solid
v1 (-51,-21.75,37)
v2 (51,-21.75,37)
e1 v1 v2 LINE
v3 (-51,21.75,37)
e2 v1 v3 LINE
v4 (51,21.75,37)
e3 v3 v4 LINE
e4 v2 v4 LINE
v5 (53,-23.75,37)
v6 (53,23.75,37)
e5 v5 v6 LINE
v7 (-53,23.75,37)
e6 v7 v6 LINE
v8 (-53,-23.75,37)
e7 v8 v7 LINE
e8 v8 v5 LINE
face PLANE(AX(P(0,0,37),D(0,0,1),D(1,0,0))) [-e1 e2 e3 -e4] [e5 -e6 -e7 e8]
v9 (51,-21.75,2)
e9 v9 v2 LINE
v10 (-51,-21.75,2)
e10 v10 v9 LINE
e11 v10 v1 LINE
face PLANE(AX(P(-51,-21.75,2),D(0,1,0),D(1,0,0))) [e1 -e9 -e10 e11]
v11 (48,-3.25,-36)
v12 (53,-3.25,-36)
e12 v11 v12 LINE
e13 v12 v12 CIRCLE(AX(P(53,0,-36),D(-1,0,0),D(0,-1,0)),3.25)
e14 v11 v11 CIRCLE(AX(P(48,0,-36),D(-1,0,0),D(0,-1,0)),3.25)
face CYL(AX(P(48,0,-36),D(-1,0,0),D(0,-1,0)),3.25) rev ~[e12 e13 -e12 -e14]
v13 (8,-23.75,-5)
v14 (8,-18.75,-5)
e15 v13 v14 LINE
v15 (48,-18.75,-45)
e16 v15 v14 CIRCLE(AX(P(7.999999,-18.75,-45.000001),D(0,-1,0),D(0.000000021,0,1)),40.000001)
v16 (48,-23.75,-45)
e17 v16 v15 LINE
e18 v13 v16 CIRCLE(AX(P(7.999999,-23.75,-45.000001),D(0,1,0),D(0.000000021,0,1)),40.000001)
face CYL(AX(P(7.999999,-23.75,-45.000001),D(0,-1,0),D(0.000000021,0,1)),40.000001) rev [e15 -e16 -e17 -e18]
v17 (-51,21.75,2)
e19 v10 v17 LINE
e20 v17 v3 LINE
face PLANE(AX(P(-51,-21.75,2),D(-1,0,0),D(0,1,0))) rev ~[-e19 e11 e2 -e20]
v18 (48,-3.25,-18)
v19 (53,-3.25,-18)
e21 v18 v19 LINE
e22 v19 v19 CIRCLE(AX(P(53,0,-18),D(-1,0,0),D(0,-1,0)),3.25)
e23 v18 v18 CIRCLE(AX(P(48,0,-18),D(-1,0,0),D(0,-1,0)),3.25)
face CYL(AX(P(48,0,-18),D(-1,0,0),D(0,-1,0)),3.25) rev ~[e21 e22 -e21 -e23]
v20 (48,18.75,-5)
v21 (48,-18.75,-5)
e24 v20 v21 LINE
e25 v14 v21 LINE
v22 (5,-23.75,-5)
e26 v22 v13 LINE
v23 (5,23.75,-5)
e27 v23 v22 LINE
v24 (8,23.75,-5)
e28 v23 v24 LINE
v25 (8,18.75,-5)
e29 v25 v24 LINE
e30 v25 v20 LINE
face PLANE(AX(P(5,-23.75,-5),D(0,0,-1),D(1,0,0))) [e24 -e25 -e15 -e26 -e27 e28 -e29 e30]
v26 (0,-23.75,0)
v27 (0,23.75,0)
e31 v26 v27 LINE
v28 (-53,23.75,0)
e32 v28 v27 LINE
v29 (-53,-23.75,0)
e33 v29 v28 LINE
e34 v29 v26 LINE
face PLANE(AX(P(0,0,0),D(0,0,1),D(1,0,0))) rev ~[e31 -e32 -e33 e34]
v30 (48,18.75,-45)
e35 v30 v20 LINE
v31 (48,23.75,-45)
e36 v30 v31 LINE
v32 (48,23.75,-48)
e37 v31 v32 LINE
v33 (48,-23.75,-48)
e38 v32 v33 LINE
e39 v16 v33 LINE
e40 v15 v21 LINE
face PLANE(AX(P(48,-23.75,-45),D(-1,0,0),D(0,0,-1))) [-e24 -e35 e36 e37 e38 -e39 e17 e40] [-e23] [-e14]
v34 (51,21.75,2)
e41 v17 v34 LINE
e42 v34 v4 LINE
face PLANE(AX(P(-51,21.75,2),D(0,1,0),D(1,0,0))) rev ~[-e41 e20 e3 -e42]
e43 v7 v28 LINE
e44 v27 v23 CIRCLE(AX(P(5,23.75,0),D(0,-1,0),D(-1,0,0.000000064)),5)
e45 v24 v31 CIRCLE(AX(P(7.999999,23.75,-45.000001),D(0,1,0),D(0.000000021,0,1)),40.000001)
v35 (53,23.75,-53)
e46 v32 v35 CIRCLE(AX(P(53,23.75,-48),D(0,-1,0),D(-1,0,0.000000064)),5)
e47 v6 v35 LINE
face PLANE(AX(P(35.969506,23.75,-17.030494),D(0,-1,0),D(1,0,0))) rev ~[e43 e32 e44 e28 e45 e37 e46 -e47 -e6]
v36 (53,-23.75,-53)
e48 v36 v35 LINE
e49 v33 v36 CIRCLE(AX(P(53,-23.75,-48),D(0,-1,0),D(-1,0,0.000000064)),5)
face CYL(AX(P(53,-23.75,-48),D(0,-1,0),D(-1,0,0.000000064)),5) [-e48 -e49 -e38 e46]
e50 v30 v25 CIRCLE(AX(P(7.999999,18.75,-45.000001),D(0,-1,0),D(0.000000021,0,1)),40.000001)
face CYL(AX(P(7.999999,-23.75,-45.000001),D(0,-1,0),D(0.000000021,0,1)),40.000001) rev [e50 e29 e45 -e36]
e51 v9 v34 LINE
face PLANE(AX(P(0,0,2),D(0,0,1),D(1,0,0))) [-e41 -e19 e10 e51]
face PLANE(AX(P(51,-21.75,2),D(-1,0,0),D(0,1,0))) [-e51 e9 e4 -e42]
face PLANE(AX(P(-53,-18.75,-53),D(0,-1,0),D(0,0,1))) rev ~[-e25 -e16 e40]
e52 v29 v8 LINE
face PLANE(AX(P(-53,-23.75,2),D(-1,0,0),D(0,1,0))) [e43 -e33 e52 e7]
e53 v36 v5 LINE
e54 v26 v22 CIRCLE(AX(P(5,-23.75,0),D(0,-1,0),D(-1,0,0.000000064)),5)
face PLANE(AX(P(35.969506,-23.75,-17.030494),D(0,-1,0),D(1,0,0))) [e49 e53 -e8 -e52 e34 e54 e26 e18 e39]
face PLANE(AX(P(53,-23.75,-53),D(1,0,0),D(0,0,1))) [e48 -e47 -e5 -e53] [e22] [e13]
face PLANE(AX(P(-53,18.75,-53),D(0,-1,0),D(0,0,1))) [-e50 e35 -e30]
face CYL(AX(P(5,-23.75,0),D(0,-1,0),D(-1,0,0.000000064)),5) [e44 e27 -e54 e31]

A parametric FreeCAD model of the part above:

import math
import FreeCAD as App
import Part
import Sketcher
from FreeCAD import Vector


def add_polygon(sketch, points):
    """Adds a closed chain of lines whose ends are joined by coincident constraints."""
    first, n = sketch.GeometryCount, len(points)
    for a, b in zip(points, points[1:] + points[:1]):
        sketch.addGeometry(Part.LineSegment(App.Vector(*a, 0), App.Vector(*b, 0)), False)
    for i in range(n):
        sketch.addConstraint(Sketcher.Constraint("Coincident", first + i, 2, first + (i + 1) % n, 1))

doc = App.newDocument("Part")
params = doc.addObject("Spreadsheet::Sheet", "Params")
for row, (alias, value) in enumerate([
    ("sketch1_width", "106 mm"),
    ("sketch1_height", "47.5 mm"),
    ("pad1_length", "2 mm"),
    ("sketch2_width", "106 mm"),
    ("sketch2_width2", "102 mm"),
    ("sketch2_height", "47.5 mm"),
    ("sketch2_height2", "43.5 mm"),
    ("pad2_length", "35 mm"),
    ("sketch3_radius", "5 mm"),
    ("sketch3_radius2", "40.000001 mm"),
    ("sketch3_width", "53 mm"),
    ("pad3_length", "47.5 mm"),
    ("sketch4_height", "48 mm"),
    ("sketch4_width", "37.5 mm"),
    ("pocket1_length", "101 mm"),
    ("sketch5_diameter", "6.5 mm"),
    ("pocket2_length", "25 mm"),
], start=1):
    params.set(f"A{row}", alias)
    params.set(f"B{row}", "=" + value)
    params.setAlias(f"B{row}", alias)

body = doc.addObject("PartDesign::Body", "Body")

# Sketch on XY plane
sketch1 = doc.addObject("Sketcher::SketchObject", "Sketch")
body.addObject(sketch1)
sketch1.AttachmentSupport = (doc.XY_Plane, [""])
sketch1.MapMode = "FlatFace"
add_polygon(sketch1, [(-53, 24), (-53, -24), (53, -24), (53, 24)])  # lines 0-3
sketch1.addConstraint(Sketcher.Constraint("Vertical", 0))
sketch1.addConstraint(Sketcher.Constraint("Horizontal", 1))
sketch1.addConstraint(Sketcher.Constraint("Vertical", 2))
sketch1.addConstraint(Sketcher.Constraint("Horizontal", 3))
sketch1.addConstraint(Sketcher.Constraint("Symmetric", 0, 2, 2, 2, -1, 1))
sketch1.addConstraint(Sketcher.Constraint("DistanceX", 1, 1, 1, 2, 106.0))
sketch1.addConstraint(Sketcher.Constraint("DistanceY", 0, 2, 0, 1, 47.5))
sketch1.setExpression("Constraints[9]", "Params.sketch1_width")
sketch1.setExpression("Constraints[10]", "Params.sketch1_height")
pad1 = doc.addObject("PartDesign::Pad", "Pad")
body.addObject(pad1)
pad1.Profile = sketch1
pad1.setExpression("Length", "Params.pad1_length")

# Sketch on XY plane
sketch2 = doc.addObject("Sketcher::SketchObject", "Sketch001")
body.addObject(sketch2)
sketch2.AttachmentSupport = (doc.XY_Plane, [""])
sketch2.MapMode = "FlatFace"
sketch2.AttachmentOffset = App.Placement(Vector(0, 0, 2), App.Rotation())
add_polygon(sketch2, [(-53, 24), (-53, -24), (53, -24), (53, 24)])  # lines 0-3
add_polygon(sketch2, [(51, -22), (-51, -22), (-51, 22), (51, 22)])  # lines 4-7
sketch2.addConstraint(Sketcher.Constraint("Vertical", 0))
sketch2.addConstraint(Sketcher.Constraint("Horizontal", 1))
sketch2.addConstraint(Sketcher.Constraint("Vertical", 2))
sketch2.addConstraint(Sketcher.Constraint("Horizontal", 3))
sketch2.addConstraint(Sketcher.Constraint("Horizontal", 4))
sketch2.addConstraint(Sketcher.Constraint("Vertical", 5))
sketch2.addConstraint(Sketcher.Constraint("Horizontal", 6))
sketch2.addConstraint(Sketcher.Constraint("Vertical", 7))
sketch2.addConstraint(Sketcher.Constraint("Symmetric", 0, 2, 2, 2, -1, 1))
sketch2.addConstraint(Sketcher.Constraint("Symmetric", 4, 2, 6, 2, -1, 1))
sketch2.addConstraint(Sketcher.Constraint("DistanceX", 1, 1, 1, 2, 106.0))
sketch2.addConstraint(Sketcher.Constraint("DistanceX", 4, 2, 4, 1, 102.0))
sketch2.addConstraint(Sketcher.Constraint("DistanceY", 0, 2, 0, 1, 47.5))
sketch2.addConstraint(Sketcher.Constraint("DistanceY", 5, 1, 5, 2, 43.5))
sketch2.setExpression("Constraints[18]", "Params.sketch2_width")
sketch2.setExpression("Constraints[19]", "Params.sketch2_width2")
sketch2.setExpression("Constraints[20]", "Params.sketch2_height")
sketch2.setExpression("Constraints[21]", "Params.sketch2_height2")
pad2 = doc.addObject("PartDesign::Pad", "Pad001")
body.addObject(pad2)
pad2.Profile = sketch2
pad2.setExpression("Length", "Params.pad2_length")

# Sketch on XZ plane
sketch3 = doc.addObject("Sketcher::SketchObject", "Sketch002")
body.addObject(sketch3)
sketch3.AttachmentSupport = (doc.XZ_Plane, [""])
sketch3.MapMode = "FlatFace"
sketch3.AttachmentOffset = App.Placement(Vector(0, 0, 23.75), App.Rotation())
sketch3.addGeometry(Part.LineSegment(Vector(53, 0, 0), Vector(0, 0, 0)), False)
sketch3.addGeometry(Part.ArcOfCircle(Part.Circle(Vector(5, 0, 0), Vector(0, 0, 1), 5), math.radians(180), math.radians(270)), False)
sketch3.addGeometry(Part.LineSegment(Vector(5, -5, 0), Vector(8, -5, 0)), False)
sketch3.addGeometry(Part.ArcOfCircle(Part.Circle(Vector(8, -45, 0), Vector(0, 0, 1), 40), math.radians(0), math.radians(90)), False)
sketch3.addGeometry(Part.LineSegment(Vector(48, -45, 0), Vector(48, -48, 0)), False)
sketch3.addGeometry(Part.ArcOfCircle(Part.Circle(Vector(53, -48, 0), Vector(0, 0, 1), 5), math.radians(180), math.radians(270)), False)
sketch3.addGeometry(Part.LineSegment(Vector(53, -53, 0), Vector(53, 0, 0)), False)
sketch3.addConstraint(Sketcher.Constraint("Coincident", 0, 2, 1, 1))
sketch3.addConstraint(Sketcher.Constraint("Tangent", 1, 2, 2, 1))
sketch3.addConstraint(Sketcher.Constraint("Tangent", 2, 2, 3, 2))
sketch3.addConstraint(Sketcher.Constraint("Tangent", 3, 1, 4, 1))
sketch3.addConstraint(Sketcher.Constraint("Tangent", 4, 2, 5, 1))
sketch3.addConstraint(Sketcher.Constraint("Coincident", 5, 2, 6, 1))
sketch3.addConstraint(Sketcher.Constraint("Coincident", 6, 2, 0, 1))
sketch3.addConstraint(Sketcher.Constraint("Horizontal", 0))
sketch3.addConstraint(Sketcher.Constraint("Horizontal", 2))
sketch3.addConstraint(Sketcher.Constraint("Vertical", 4))
sketch3.addConstraint(Sketcher.Constraint("Vertical", 6))
sketch3.addConstraint(Sketcher.Constraint("Coincident", 0, 2, -1, 1))
sketch3.addConstraint(Sketcher.Constraint("Equal", 1, 5))
sketch3.addConstraint(Sketcher.Constraint("PointOnObject", 1, 3, -1))
sketch3.addConstraint(Sketcher.Constraint("Equal", 2, 4))
sketch3.addConstraint(Sketcher.Constraint("Equal", 0, 6))
sketch3.addConstraint(Sketcher.Constraint("Radius", 1, 5.0))
sketch3.addConstraint(Sketcher.Constraint("Radius", 3, 40.000001))
sketch3.addConstraint(Sketcher.Constraint("DistanceX", 0, 2, 0, 1, 53.0))
sketch3.setExpression("Constraints[16]", "Params.sketch3_radius")
sketch3.setExpression("Constraints[17]", "Params.sketch3_radius2")
sketch3.setExpression("Constraints[18]", "Params.sketch3_width")
pad3 = doc.addObject("PartDesign::Pad", "Pad002")
body.addObject(pad3)
pad3.Profile = sketch3
pad3.setExpression("Length", "Params.pad3_length")
pad3.Reversed = True

# Sketch on YZ plane
sketch4 = doc.addObject("Sketcher::SketchObject", "Sketch003")
body.addObject(sketch4)
sketch4.AttachmentSupport = (doc.YZ_Plane, [""])
sketch4.MapMode = "FlatFace"
sketch4.AttachmentOffset = App.Placement(Vector(0, 0, -53), App.Rotation())
add_polygon(sketch4, [(19, -5), (19, -53), (-19, -53), (-19, -5)])  # lines 0-3
sketch4.addConstraint(Sketcher.Constraint("Vertical", 0))
sketch4.addConstraint(Sketcher.Constraint("Horizontal", 1))
sketch4.addConstraint(Sketcher.Constraint("Vertical", 2))
sketch4.addConstraint(Sketcher.Constraint("Horizontal", 3))
sketch4.addConstraint(Sketcher.Constraint("DistanceY", 0, 2, 0, 1, 48.0))
sketch4.addConstraint(Sketcher.Constraint("DistanceX", 1, 2, 1, 1, 37.5))
sketch4.addConstraint(Sketcher.Constraint("DistanceY", 0, 2, -1, 1, 53.0))
sketch4.addConstraint(Sketcher.Constraint("DistanceX", -1, 1, 0, 2, 18.75))
sketch4.setExpression("Constraints[8]", "Params.sketch4_height")
sketch4.setExpression("Constraints[9]", "Params.sketch4_width")
pocket1 = doc.addObject("PartDesign::Pocket", "Pocket")
body.addObject(pocket1)
pocket1.Profile = sketch4
pocket1.setExpression("Length", "Params.pocket1_length")
pocket1.Reversed = True

# Sketch on YZ plane
sketch5 = doc.addObject("Sketcher::SketchObject", "Sketch004")
body.addObject(sketch5)
sketch5.AttachmentSupport = (doc.YZ_Plane, [""])
sketch5.MapMode = "FlatFace"
sketch5.AttachmentOffset = App.Placement(Vector(0, 0, 48), App.Rotation())
sketch5.addGeometry(Part.Circle(Vector(0, -18, 0), Vector(0, 0, 1), 3.2), False)
sketch5.addGeometry(Part.Circle(Vector(0, -36, 0), Vector(0, 0, 1), 3.2), False)
sketch5.addConstraint(Sketcher.Constraint("Equal", 0, 1))
sketch5.addConstraint(Sketcher.Constraint("PointOnObject", 0, 3, -2))
sketch5.addConstraint(Sketcher.Constraint("PointOnObject", 1, 3, -2))
sketch5.addConstraint(Sketcher.Constraint("Diameter", 0, 6.5))
sketch5.addConstraint(Sketcher.Constraint("DistanceY", 0, 3, -1, 1, 18.0))
sketch5.addConstraint(Sketcher.Constraint("DistanceY", 1, 3, -1, 1, 36.0))
sketch5.setExpression("Constraints[3]", "Params.sketch5_diameter")
pocket2 = doc.addObject("PartDesign::Pocket", "Pocket001")
body.addObject(pocket2)
pocket2.Profile = sketch5
pocket2.setExpression("Length", "Params.pocket2_length")
pocket2.Reversed = True

doc.recompute()
